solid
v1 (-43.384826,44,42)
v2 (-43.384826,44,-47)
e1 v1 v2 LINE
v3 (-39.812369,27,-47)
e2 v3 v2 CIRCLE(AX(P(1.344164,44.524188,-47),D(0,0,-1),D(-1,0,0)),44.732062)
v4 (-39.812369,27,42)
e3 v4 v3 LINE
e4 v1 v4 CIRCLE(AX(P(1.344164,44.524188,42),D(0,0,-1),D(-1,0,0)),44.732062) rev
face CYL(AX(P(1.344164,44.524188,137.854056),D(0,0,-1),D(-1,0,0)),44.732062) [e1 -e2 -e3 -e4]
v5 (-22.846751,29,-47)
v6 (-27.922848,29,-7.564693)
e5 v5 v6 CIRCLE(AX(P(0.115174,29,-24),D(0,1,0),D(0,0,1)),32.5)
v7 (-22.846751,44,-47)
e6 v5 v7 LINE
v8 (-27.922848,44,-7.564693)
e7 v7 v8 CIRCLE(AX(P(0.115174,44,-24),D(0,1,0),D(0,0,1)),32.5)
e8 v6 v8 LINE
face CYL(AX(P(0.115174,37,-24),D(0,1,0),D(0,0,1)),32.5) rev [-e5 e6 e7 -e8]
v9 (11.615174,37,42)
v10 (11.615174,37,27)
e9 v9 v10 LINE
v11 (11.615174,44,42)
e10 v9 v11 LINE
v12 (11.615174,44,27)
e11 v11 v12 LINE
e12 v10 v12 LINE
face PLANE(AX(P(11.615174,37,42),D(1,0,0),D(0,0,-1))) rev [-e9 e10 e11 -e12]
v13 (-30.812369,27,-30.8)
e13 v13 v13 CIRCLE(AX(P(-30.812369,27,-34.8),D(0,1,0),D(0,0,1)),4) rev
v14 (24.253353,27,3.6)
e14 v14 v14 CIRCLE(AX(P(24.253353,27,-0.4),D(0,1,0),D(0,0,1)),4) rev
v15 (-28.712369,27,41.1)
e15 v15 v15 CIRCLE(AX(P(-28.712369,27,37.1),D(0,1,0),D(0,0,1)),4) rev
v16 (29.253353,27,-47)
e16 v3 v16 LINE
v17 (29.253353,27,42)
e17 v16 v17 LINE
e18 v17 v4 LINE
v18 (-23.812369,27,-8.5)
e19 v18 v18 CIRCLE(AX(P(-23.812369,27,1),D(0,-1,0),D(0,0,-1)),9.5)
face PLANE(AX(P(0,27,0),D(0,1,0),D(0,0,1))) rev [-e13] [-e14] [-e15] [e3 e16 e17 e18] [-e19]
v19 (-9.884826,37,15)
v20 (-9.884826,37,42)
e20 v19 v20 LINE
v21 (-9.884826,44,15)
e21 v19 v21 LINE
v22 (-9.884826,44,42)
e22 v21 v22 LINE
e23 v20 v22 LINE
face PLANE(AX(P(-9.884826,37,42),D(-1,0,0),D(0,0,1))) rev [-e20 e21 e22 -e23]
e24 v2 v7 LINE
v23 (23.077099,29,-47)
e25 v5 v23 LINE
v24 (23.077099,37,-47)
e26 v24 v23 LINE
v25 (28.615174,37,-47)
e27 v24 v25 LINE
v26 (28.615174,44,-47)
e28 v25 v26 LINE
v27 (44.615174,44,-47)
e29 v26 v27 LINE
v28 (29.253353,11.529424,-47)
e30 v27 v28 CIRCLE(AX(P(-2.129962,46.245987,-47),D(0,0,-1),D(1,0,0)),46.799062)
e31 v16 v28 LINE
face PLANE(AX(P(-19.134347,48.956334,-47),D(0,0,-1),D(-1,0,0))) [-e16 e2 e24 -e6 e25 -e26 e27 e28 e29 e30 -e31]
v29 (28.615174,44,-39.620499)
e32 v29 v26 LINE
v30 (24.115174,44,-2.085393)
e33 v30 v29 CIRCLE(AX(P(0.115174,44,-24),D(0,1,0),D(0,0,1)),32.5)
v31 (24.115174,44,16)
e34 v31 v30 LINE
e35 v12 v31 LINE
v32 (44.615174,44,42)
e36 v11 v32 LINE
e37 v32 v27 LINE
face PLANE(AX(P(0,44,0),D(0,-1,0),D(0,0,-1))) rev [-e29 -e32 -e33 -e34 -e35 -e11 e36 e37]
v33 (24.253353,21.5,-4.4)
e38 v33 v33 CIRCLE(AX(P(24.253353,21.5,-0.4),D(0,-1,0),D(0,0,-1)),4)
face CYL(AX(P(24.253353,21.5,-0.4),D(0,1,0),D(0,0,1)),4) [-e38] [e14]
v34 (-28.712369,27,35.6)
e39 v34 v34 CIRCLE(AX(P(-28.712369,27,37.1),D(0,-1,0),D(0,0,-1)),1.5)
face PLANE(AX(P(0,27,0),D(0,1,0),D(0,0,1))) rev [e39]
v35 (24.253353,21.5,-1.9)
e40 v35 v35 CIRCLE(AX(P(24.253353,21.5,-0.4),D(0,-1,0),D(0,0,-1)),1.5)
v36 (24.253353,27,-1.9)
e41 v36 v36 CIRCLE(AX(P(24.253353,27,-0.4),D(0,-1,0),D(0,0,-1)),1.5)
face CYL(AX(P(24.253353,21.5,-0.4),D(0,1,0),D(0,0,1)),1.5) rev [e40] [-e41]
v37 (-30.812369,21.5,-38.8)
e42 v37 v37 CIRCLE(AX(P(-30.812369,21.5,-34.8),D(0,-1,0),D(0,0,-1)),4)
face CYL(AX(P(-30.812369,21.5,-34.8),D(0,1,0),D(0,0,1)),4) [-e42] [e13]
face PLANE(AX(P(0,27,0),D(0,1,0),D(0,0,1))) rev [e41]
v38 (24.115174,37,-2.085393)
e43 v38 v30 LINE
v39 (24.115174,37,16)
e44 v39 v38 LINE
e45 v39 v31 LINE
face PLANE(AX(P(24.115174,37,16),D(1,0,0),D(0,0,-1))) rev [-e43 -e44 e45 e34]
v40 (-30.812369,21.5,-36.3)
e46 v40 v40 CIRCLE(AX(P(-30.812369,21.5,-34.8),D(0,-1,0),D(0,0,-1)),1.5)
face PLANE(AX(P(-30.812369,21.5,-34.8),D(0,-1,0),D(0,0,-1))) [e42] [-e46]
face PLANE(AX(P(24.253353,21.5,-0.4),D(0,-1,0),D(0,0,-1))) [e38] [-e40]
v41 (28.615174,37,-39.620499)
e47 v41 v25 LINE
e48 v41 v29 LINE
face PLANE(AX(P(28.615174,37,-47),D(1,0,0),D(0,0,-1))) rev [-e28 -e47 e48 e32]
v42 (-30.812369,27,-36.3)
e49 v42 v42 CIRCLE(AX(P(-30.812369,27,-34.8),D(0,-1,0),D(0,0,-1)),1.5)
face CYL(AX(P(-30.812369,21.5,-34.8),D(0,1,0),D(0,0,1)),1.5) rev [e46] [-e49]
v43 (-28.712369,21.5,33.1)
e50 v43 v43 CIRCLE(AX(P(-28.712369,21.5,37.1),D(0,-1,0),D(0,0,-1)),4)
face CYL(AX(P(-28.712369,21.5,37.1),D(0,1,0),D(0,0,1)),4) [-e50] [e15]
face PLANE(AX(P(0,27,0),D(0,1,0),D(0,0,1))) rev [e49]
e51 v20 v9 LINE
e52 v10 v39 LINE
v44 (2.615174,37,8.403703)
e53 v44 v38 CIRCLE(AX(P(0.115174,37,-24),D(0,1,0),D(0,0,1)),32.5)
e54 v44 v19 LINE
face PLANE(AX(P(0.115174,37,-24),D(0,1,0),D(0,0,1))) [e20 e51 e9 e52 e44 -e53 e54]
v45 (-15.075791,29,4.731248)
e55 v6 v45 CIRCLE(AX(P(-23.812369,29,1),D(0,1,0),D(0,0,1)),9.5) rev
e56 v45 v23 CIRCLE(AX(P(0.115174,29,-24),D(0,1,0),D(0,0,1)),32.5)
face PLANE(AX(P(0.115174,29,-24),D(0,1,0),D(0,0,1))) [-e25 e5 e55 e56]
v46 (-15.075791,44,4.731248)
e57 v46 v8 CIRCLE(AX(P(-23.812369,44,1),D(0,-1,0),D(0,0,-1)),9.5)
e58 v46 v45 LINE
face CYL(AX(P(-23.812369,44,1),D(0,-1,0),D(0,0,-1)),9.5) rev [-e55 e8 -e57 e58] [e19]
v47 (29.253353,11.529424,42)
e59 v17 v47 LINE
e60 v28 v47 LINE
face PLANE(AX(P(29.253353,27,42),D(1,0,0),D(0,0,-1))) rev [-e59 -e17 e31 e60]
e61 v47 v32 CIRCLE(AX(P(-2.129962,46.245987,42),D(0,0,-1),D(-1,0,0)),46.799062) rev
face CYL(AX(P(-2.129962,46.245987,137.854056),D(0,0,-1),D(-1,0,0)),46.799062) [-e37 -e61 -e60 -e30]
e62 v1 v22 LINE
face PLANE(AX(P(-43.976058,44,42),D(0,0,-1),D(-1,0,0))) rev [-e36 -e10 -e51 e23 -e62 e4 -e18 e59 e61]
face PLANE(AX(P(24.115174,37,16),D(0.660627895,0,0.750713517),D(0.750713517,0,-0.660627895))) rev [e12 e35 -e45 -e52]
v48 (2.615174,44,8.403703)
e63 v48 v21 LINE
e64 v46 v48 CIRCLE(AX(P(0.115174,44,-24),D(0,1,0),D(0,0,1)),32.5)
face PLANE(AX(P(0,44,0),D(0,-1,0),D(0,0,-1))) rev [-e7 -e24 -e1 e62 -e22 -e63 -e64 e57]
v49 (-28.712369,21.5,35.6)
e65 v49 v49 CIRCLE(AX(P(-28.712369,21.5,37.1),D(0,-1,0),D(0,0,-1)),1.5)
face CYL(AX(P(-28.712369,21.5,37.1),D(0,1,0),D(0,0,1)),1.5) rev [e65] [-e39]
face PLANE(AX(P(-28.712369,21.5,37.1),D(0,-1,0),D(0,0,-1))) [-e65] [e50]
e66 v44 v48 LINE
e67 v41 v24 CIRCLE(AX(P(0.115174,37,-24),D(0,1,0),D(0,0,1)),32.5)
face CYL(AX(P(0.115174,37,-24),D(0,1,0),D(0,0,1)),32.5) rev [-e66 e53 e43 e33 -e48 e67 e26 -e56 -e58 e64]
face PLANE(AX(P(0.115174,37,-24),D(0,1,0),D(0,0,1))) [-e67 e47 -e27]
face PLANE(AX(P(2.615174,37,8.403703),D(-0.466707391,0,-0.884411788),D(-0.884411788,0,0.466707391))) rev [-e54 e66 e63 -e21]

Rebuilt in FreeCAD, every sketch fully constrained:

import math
import FreeCAD as App
import Part
import Sketcher

V = App.Vector


def add_polygon(sketch, points):
    """Adds a closed chain of lines whose ends are joined by coincident constraints."""
    first, n = sketch.GeometryCount, len(points)
    for a, b in zip(points, points[1:] + points[:1]):
        sketch.addGeometry(Part.LineSegment(App.Vector(*a, 0), App.Vector(*b, 0)), False)
    for i in range(n):
        sketch.addConstraint(Sketcher.Constraint("Coincident", first + i, 2, first + (i + 1) % n, 1))

doc = App.newDocument("Part")
params = doc.addObject("Spreadsheet::Sheet", "Params")
for row, (alias, value) in enumerate([
    ("sketch1_height", "84 mm"),
    ("pad1_length", "44 mm"),
    ("sketch2_width", "42 mm"),
    ("sketch3_width", "42 mm"),
    ("sketch3_length", "4 mm"),
    ("pocket2_length", "94 mm"),
    ("pad2_length", "5 mm"),
    ("sketch6_width", "88 mm"),
    ("pad3_length", "89 mm"),
    ("sketch7_height", "89 mm"),
    ("pocket4_length", "21 mm"),
    ("sketch8_height", "89 mm"),
    ("pocket5_length", "15 mm"),
    ("sketch9_diameter", "19 mm"),
    ("sketch10_diameter", "8 mm"),
    ("sketch10_diameter2", "3 mm"),
    ("pad4_length", "5.5 mm"),
    ("sketch11_radius", "32.5 mm"),
    ("sketch11_height", "15 mm"),
    ("sketch11_height2", "27 mm"),
    ("sketch11_width", "21.5 mm"),
    ("pocket7_length", "7 mm"),
    ("sketch12_diameter", "65 mm"),
    ("pocket8_length", "8 mm"),
], start=1):
    params.set(f"A{row}", alias)
    params.set(f"B{row}", "=" + value)
    params.setAlias(f"B{row}", alias)

body = doc.addObject("PartDesign::Body", "Body")

sketch1 = body.newObject("Sketcher::SketchObject", "Sketch")
sketch1.AttachmentSupport = (doc.getObject("XZ_Plane"), [""])
sketch1.MapMode = "FlatFace"
add_polygon(sketch1, [(-43.976058, -42), (-43.976058, 42), (43.976058, 42), (43.976058, -42)])
sketch1.addConstraint(Sketcher.Constraint("Vertical", 0))
sketch1.addConstraint(Sketcher.Constraint("Horizontal", 1))
sketch1.addConstraint(Sketcher.Constraint("Vertical", 2))
sketch1.addConstraint(Sketcher.Constraint("Horizontal", 3))
sketch1.addConstraint(Sketcher.Constraint("Symmetric", 0, 2, 2, 2, -1, 1))
sketch1.addConstraint(Sketcher.Constraint("DistanceY", 0, 1, 0, 2, 84.0))
sketch1.addConstraint(Sketcher.Constraint("DistanceX", 1, 1, 1, 2, 87.952115))
sketch1.setExpression("Constraints[9]", "Params.sketch1_height")
pad1 = body.newObject("PartDesign::Pad", "Pad")
pad1.Profile = sketch1
pad1.setExpression("Length", "Params.pad1_length")
pad1.Reversed = True

sketch2 = body.newObject("Sketcher::SketchObject", "Sketch001")
sketch2.AttachmentSupport = (doc.getObject("XY_Plane"), [""])
sketch2.MapMode = "FlatFace"
sketch2.AttachmentOffset = App.Placement(V(0, 0, 42), App.Rotation())
sketch2.addGeometry(Part.LineSegment(V(21, 0, 0), V(-21, 0, 0)), False)
sketch2.addGeometry(Part.ArcOfCircle(Part.Circle(V(29.251311, 54.239242, 0), V(0, 0, 1), 73.93977), math.radians(-172.040051), math.radians(-132.814341)), False)
sketch2.addGeometry(Part.LineSegment(V(-43.976058, 44, 0), V(-43.976058, -11.971242, 0)), False)
sketch2.addGeometry(Part.LineSegment(V(-43.976058, -11.971242, 0), V(43.976058, -11.971242, 0)), False)
sketch2.addGeometry(Part.LineSegment(V(43.976058, -11.971242, 0), V(43.976058, 44, 0)), False)
sketch2.addGeometry(Part.ArcOfCircle(Part.Circle(V(-19.134347, 48.956334, 0), V(0, 0, 1), 63.304726), math.radians(-50.655139), math.radians(-4.490469)), False)
sketch2.addConstraint(Sketcher.Constraint("Coincident", 0, 2, 1, 2))
sketch2.addConstraint(Sketcher.Constraint("Coincident", 1, 1, 2, 1))
sketch2.addConstraint(Sketcher.Constraint("Coincident", 2, 2, 3, 1))
sketch2.addConstraint(Sketcher.Constraint("Coincident", 3, 2, 4, 1))
sketch2.addConstraint(Sketcher.Constraint("Coincident", 4, 2, 5, 2))
sketch2.addConstraint(Sketcher.Constraint("Coincident", 5, 1, 0, 1))
sketch2.addConstraint(Sketcher.Constraint("Horizontal", 0))
sketch2.addConstraint(Sketcher.Constraint("Vertical", 2))
sketch2.addConstraint(Sketcher.Constraint("Horizontal", 3))
sketch2.addConstraint(Sketcher.Constraint("Vertical", 4))
sketch2.addConstraint(Sketcher.Constraint("Symmetric", 0, 2, 5, 1, -1, 1))
sketch2.addConstraint(Sketcher.Constraint("Symmetric", 1, 1, 4, 2, -2))
sketch2.addConstraint(Sketcher.Constraint("DistanceX", 0, 2, 0, 1, 42.0))
sketch2.addConstraint(Sketcher.Constraint("DistanceY", -1, 1, 1, 1, 44.0))
sketch2.addConstraint(Sketcher.Constraint("Radius", 1, 73.93977))
sketch2.addConstraint(Sketcher.Constraint("Radius", 5, 63.304726))
sketch2.addConstraint(Sketcher.Constraint("DistanceY", 2, 2, 2, 1, 55.971242))
sketch2.addConstraint(Sketcher.Constraint("DistanceX", 3, 1, 3, 2, 87.952115))
sketch2.setExpression("Constraints[12]", "Params.sketch2_width")
pocket1 = body.newObject("PartDesign::Pocket", "Pocket")
pocket1.Profile = sketch2
pocket1.Type = "ThroughAll"

sketch3 = body.newObject("Sketcher::SketchObject", "Sketch002")
sketch3.AttachmentSupport = (doc.getObject("XY_Plane"), [""])
sketch3.MapMode = "FlatFace"
sketch3.AttachmentOffset = App.Placement(V(0, 0, 42), App.Rotation())
sketch3.addGeometry(Part.LineSegment(V(-40.014597, 44.553923, 0), V(-43.976058, 44, 0)), False)
sketch3.addGeometry(Part.ArcOfCircle(Part.Circle(V(29.251311, 54.239242, 0), V(0, 0, 1), 73.93977), math.radians(-172.040051), math.radians(-132.814341)), False)
sketch3.addGeometry(Part.LineSegment(V(-21, 0, 0), V(21, 0, 0)), False)
sketch3.addGeometry(Part.ArcOfCircle(Part.Circle(V(-19.134347, 48.956334, 0), V(0, 0, 1), 63.304726), math.radians(-50.655139), math.radians(-4.490469)), False)
sketch3.addGeometry(Part.LineSegment(V(43.976058, 44, 0), V(39.988336, 44.313173, 0)), False)
sketch3.addGeometry(Part.ArcOfCircle(Part.Circle(V(-19.134347, 48.956334, 0), V(0, 0, 1), 59.304726), math.radians(-49.293162), math.radians(-4.490469)), False)
sketch3.addGeometry(Part.LineSegment(V(19.543536, 4, 0), V(-19.406577, 4, 0)), False)
sketch3.addGeometry(Part.ArcOfCircle(Part.Circle(V(29.251311, 54.239242, 0), V(0, 0, 1), 69.93977), math.radians(-172.040051), math.radians(-134.083925)), False)
sketch3.addConstraint(Sketcher.Constraint("Coincident", 0, 2, 1, 1))
sketch3.addConstraint(Sketcher.Constraint("Coincident", 1, 2, 2, 1))
sketch3.addConstraint(Sketcher.Constraint("Coincident", 2, 2, 3, 1))
sketch3.addConstraint(Sketcher.Constraint("Coincident", 3, 2, 4, 1))
sketch3.addConstraint(Sketcher.Constraint("Coincident", 4, 2, 5, 2))
sketch3.addConstraint(Sketcher.Constraint("Coincident", 5, 1, 6, 1))
sketch3.addConstraint(Sketcher.Constraint("Coincident", 6, 2, 7, 2))
sketch3.addConstraint(Sketcher.Constraint("Coincident", 7, 1, 0, 1))
sketch3.addConstraint(Sketcher.Constraint("Horizontal", 2))
sketch3.addConstraint(Sketcher.Constraint("Horizontal", 6))
sketch3.addConstraint(Sketcher.Constraint("Coincident", 5, 3, 3, 3))
sketch3.addConstraint(Sketcher.Constraint("Coincident", 7, 3, 1, 3))
sketch3.addConstraint(Sketcher.Constraint("Symmetric", 1, 2, 2, 2, -1, 1))
sketch3.addConstraint(Sketcher.Constraint("Symmetric", 0, 2, 3, 2, -2))
sketch3.addConstraint(Sketcher.Constraint("Equal", 0, 4))
sketch3.addConstraint(Sketcher.Constraint("DistanceX", 2, 1, 2, 2, 42.0))
sketch3.addConstraint(Sketcher.Constraint("Distance", 0, 4.0))
sketch3.addConstraint(Sketcher.Constraint("DistanceY", -1, 1, 0, 2, 44.0))
sketch3.addConstraint(Sketcher.Constraint("DistanceY", -1, 1, 5, 1, 4.0))
sketch3.addConstraint(Sketcher.Constraint("Radius", 1, 73.93977))
sketch3.addConstraint(Sketcher.Constraint("Radius", 3, 63.304726))
sketch3.addConstraint(Sketcher.Constraint("DistanceX", 5, 1, 4, 2, 20.4448))
sketch3.addConstraint(Sketcher.Constraint("DistanceX", 6, 2, 6, 1, 38.950113))
sketch3.addConstraint(Sketcher.Constraint("DistanceX", 0, 2, 7, 1, 3.96146))
sketch3.setExpression("Constraints[15]", "Params.sketch3_width")
sketch3.setExpression("Constraints[16]", "Params.sketch3_length")
pocket2 = body.newObject("PartDesign::Pocket", "Pocket001")
pocket2.Profile = sketch3
pocket2.setExpression("Length", "Params.pocket2_length")

sketch4 = body.newObject("Sketcher::SketchObject", "Sketch003")
sketch4.AttachmentSupport = (doc.getObject("XY_Plane"), [""])
sketch4.MapMode = "FlatFace"
sketch4.AttachmentOffset = App.Placement(V(0, 0, -42), App.Rotation())
sketch4.addGeometry(Part.LineSegment(V(19.543536, 4, 0), V(-19.406577, 4, 0)), False)
sketch4.addGeometry(Part.ArcOfCircle(Part.Circle(V(29.251311, 54.239242, 0), V(0, 0, 1), 69.93977), math.radians(-171.581592), math.radians(-134.083925)), False)
sketch4.addGeometry(Part.LineSegment(V(-39.934882, 44, 0), V(39.962907, 44, 0)), False)
sketch4.addGeometry(Part.ArcOfCircle(Part.Circle(V(-19.134347, 48.956334, 0), V(0, 0, 1), 59.304726), math.radians(-49.293162), math.radians(-4.79403)), False)
sketch4.addConstraint(Sketcher.Constraint("Coincident", 0, 2, 1, 2))
sketch4.addConstraint(Sketcher.Constraint("Coincident", 1, 1, 2, 1))
sketch4.addConstraint(Sketcher.Constraint("Coincident", 2, 2, 3, 2))
sketch4.addConstraint(Sketcher.Constraint("Coincident", 3, 1, 0, 1))
sketch4.addConstraint(Sketcher.Constraint("Horizontal", 0))
sketch4.addConstraint(Sketcher.Constraint("Horizontal", 2))
sketch4.addConstraint(Sketcher.Constraint("DistanceY", -1, 1, 0, 2, 4.0))
sketch4.addConstraint(Sketcher.Constraint("DistanceY", -1, 1, 1, 1, 44.0))
sketch4.addConstraint(Sketcher.Constraint("Radius", 1, 69.93977))
sketch4.addConstraint(Sketcher.Constraint("Radius", 3, 59.304726))
sketch4.addConstraint(Sketcher.Constraint("DistanceX", 2, 1, 2, 2, 79.897789))
sketch4.addConstraint(Sketcher.Constraint("DistanceX", 0, 2, 0, 1, 38.950113))
sketch4.addConstraint(Sketcher.Constraint("DistanceX", -1, 1, 1, 3, 29.251311))
sketch4.addConstraint(Sketcher.Constraint("DistanceY", -1, 1, 1, 3, 54.239242))
pad2 = body.newObject("PartDesign::Pad", "Pad001")
pad2.Profile = sketch4
pad2.setExpression("Length", "Params.pad2_length")
pad2.Reversed = True

sketch5 = body.newObject("Sketcher::SketchObject", "Sketch004")
sketch5.AttachmentSupport = (doc.getObject("XY_Plane"), [""])
sketch5.MapMode = "FlatFace"
sketch5.AttachmentOffset = App.Placement(V(0, 0, -47), App.Rotation())
sketch5.addGeometry(Part.LineSegment(V(19.543536, 4, 0), V(-19.406577, 4, 0)), False)
sketch5.addGeometry(Part.ArcOfCircle(Part.Circle(V(29.251309, 54.23924, 0), V(0, 0, 1), 69.939768), math.radians(-136.391618), math.radians(-134.083925)), False)
sketch5.addGeometry(Part.LineSegment(V(-21.390046, 6, 0), V(21.753353, 6, 0)), False)
sketch5.addGeometry(Part.ArcOfCircle(Part.Circle(V(-19.134346, 48.956333, 0), V(0, 0, 1), 59.304726), math.radians(-49.293162), math.radians(-46.413338)), False)
sketch5.addConstraint(Sketcher.Constraint("Coincident", 0, 2, 1, 2))
sketch5.addConstraint(Sketcher.Constraint("Coincident", 1, 1, 2, 1))
sketch5.addConstraint(Sketcher.Constraint("Coincident", 2, 2, 3, 2))
sketch5.addConstraint(Sketcher.Constraint("Coincident", 3, 1, 0, 1))
sketch5.addConstraint(Sketcher.Constraint("Horizontal", 0))
sketch5.addConstraint(Sketcher.Constraint("Horizontal", 2))
sketch5.addConstraint(Sketcher.Constraint("DistanceY", -1, 1, 0, 2, 4.0))
sketch5.addConstraint(Sketcher.Constraint("DistanceY", -1, 1, 1, 1, 6.0))
sketch5.addConstraint(Sketcher.Constraint("DistanceX", 2, 1, 2, 2, 43.143398))
sketch5.addConstraint(Sketcher.Constraint("Radius", 1, 69.939768))
sketch5.addConstraint(Sketcher.Constraint("Radius", 3, 59.304726))
sketch5.addConstraint(Sketcher.Constraint("DistanceX", 1, 1, 3, 3, 2.255699))
sketch5.addConstraint(Sketcher.Constraint("DistanceX", 0, 2, 0, 1, 38.950113))
sketch5.addConstraint(Sketcher.Constraint("DistanceX", -1, 1, 1, 3, 29.251309))
pocket3 = body.newObject("PartDesign::Pocket", "Pocket002")
pocket3.Profile = sketch5
pocket3.Type = "ThroughAll"
pocket3.Reversed = True

sketch6 = body.newObject("Sketcher::SketchObject", "Sketch005")
sketch6.AttachmentSupport = (doc.getObject("XY_Plane"), [""])
sketch6.MapMode = "FlatFace"
sketch6.AttachmentOffset = App.Placement(V(0, 0, -47), App.Rotation())
sketch6.addGeometry(Part.LineSegment(V(21.753353, 6, 0), V(-21.390046, 6, 0)), False)
sketch6.addGeometry(Part.ArcOfCircle(Part.Circle(V(1.344164, 44.524188, 0), V(0, 0, 1), 44.732062), math.radians(-179.32857), math.radians(-120.546053)), False)
sketch6.addGeometry(Part.LineSegment(V(-43.384826, 44, 0), V(44.615174, 44, 0)), False)
sketch6.addGeometry(Part.ArcOfCircle(Part.Circle(V(-2.129962, 46.245987, 0), V(0, 0, 1), 46.799062), math.radians(-59.313689), math.radians(-2.750803)), False)
sketch6.addConstraint(Sketcher.Constraint("Coincident", 0, 2, 1, 2))
sketch6.addConstraint(Sketcher.Constraint("Coincident", 1, 1, 2, 1))
sketch6.addConstraint(Sketcher.Constraint("Coincident", 2, 2, 3, 2))
sketch6.addConstraint(Sketcher.Constraint("Coincident", 3, 1, 0, 1))
sketch6.addConstraint(Sketcher.Constraint("Horizontal", 0))
sketch6.addConstraint(Sketcher.Constraint("Horizontal", 2))
sketch6.addConstraint(Sketcher.Constraint("DistanceX", 2, 1, 2, 2, 88.0))
sketch6.addConstraint(Sketcher.Constraint("DistanceY", -1, 1, 0, 2, 6.0))
sketch6.addConstraint(Sketcher.Constraint("DistanceY", -1, 1, 1, 1, 44.0))
sketch6.addConstraint(Sketcher.Constraint("Radius", 3, 46.799062))
sketch6.addConstraint(Sketcher.Constraint("DistanceX", 0, 2, 0, 1, 43.143398))
sketch6.addConstraint(Sketcher.Constraint("Radius", 1, 44.732062))
sketch6.addConstraint(Sketcher.Constraint("DistanceY", 1, 3, 3, 3, 1.721798))
sketch6.addConstraint(Sketcher.Constraint("DistanceX", -1, 1, 1, 3, 1.344164))
sketch6.setExpression("Constraints[6]", "Params.sketch6_width")
pad3 = body.newObject("PartDesign::Pad", "Pad002")
pad3.Profile = sketch6
pad3.setExpression("Length", "Params.pad3_length")

sketch7 = body.newObject("Sketcher::SketchObject", "Sketch006")
sketch7.AttachmentSupport = (doc.getObject("XZ_Plane"), [""])
sketch7.MapMode = "FlatFace"
sketch7.AttachmentOffset = App.Placement(V(0, 0, -6), App.Rotation())
add_polygon(sketch7, [(-37.390046, 42), (-37.390046, -47), (29.253353, -47), (29.253353, 42)])
sketch7.addConstraint(Sketcher.Constraint("Vertical", 0))
sketch7.addConstraint(Sketcher.Constraint("Horizontal", 1))
sketch7.addConstraint(Sketcher.Constraint("Vertical", 2))
sketch7.addConstraint(Sketcher.Constraint("Horizontal", 3))
sketch7.addConstraint(Sketcher.Constraint("DistanceY", 0, 2, 0, 1, 89.0))
sketch7.addConstraint(Sketcher.Constraint("DistanceY", 0, 2, -1, 1, 47.0))
sketch7.addConstraint(Sketcher.Constraint("DistanceX", 1, 1, 1, 2, 66.643398))
sketch7.addConstraint(Sketcher.Constraint("DistanceX", 0, 2, -1, 1, 37.390046))
sketch7.setExpression("Constraints[8]", "Params.sketch7_height")
pocket4 = body.newObject("PartDesign::Pocket", "Pocket003")
pocket4.Profile = sketch7
pocket4.setExpression("Length", "Params.pocket4_length")

sketch8 = body.newObject("Sketcher::SketchObject", "Sketch007")
sketch8.AttachmentSupport = (doc.getObject("YZ_Plane"), [""])
sketch8.MapMode = "FlatFace"
sketch8.AttachmentOffset = App.Placement(V(0, 0, -37.390046), App.Rotation())
add_polygon(sketch8, [(27, 42), (22.149686, 42), (22.149686, -47), (27, -47)])
sketch8.addConstraint(Sketcher.Constraint("Horizontal", 0))
sketch8.addConstraint(Sketcher.Constraint("Vertical", 1))
sketch8.addConstraint(Sketcher.Constraint("Horizontal", 2))
sketch8.addConstraint(Sketcher.Constraint("Vertical", 3))
sketch8.addConstraint(Sketcher.Constraint("DistanceY", 1, 2, 1, 1, 89.0))
sketch8.addConstraint(Sketcher.Constraint("DistanceY", -1, 1, 0, 2, 42.0))
sketch8.addConstraint(Sketcher.Constraint("DistanceX", -1, 1, 2, 2, 27.0))
sketch8.addConstraint(Sketcher.Constraint("DistanceX", 0, 2, 0, 1, 4.850314))
sketch8.setExpression("Constraints[8]", "Params.sketch8_height")
pocket5 = body.newObject("PartDesign::Pocket", "Pocket004")
pocket5.Profile = sketch8
pocket5.setExpression("Length", "Params.pocket5_length")

sketch9 = body.newObject("Sketcher::SketchObject", "Sketch008")
sketch9.AttachmentSupport = (doc.getObject("XZ_Plane"), [""])
sketch9.MapMode = "FlatFace"
sketch9.AttachmentOffset = App.Placement(V(0, 0, -27), App.Rotation())
sketch9.addGeometry(Part.Circle(V(-23.812369, 1, 0), V(0, 0, 1), 9.5), False)
sketch9.addConstraint(Sketcher.Constraint("Diameter", 0, 19.0))
sketch9.addConstraint(Sketcher.Constraint("DistanceY", -1, 1, 0, 3, 1.0))
sketch9.addConstraint(Sketcher.Constraint("DistanceX", 0, 3, -1, 1, 23.812369))
sketch9.setExpression("Constraints[0]", "Params.sketch9_diameter")
pocket6 = body.newObject("PartDesign::Pocket", "Pocket005")
pocket6.Profile = sketch9
pocket6.Type = "ThroughAll"

sketch10 = body.newObject("Sketcher::SketchObject", "Sketch009")
sketch10.AttachmentSupport = (doc.getObject("XZ_Plane"), [""])
sketch10.MapMode = "FlatFace"
sketch10.AttachmentOffset = App.Placement(V(0, 0, -27), App.Rotation())
sketch10.addGeometry(Part.Circle(V(-28.712369, 37.1, 0), V(0, 0, 1), 4), False)
sketch10.addGeometry(Part.Circle(V(-28.712369, 37.1, 0), V(0, 0, 1), 1.5), False)
sketch10.addGeometry(Part.Circle(V(24.253353, -0.4, 0), V(0, 0, 1), 4), False)
sketch10.addGeometry(Part.Circle(V(24.253353, -0.4, 0), V(0, 0, 1), 1.5), False)
sketch10.addGeometry(Part.Circle(V(-30.812369, -34.8, 0), V(0, 0, 1), 4), False)
sketch10.addGeometry(Part.Circle(V(-30.812369, -34.8, 0), V(0, 0, 1), 1.5), False)
sketch10.addConstraint(Sketcher.Constraint("Coincident", 1, 3, 0, 3))
sketch10.addConstraint(Sketcher.Constraint("Coincident", 3, 3, 2, 3))
sketch10.addConstraint(Sketcher.Constraint("Coincident", 5, 3, 4, 3))
sketch10.addConstraint(Sketcher.Constraint("Equal", 0, 2))
sketch10.addConstraint(Sketcher.Constraint("Equal", 1, 3))
sketch10.addConstraint(Sketcher.Constraint("Equal", 2, 4))
sketch10.addConstraint(Sketcher.Constraint("Equal", 3, 5))
sketch10.addConstraint(Sketcher.Constraint("Diameter", 0, 8.0))
sketch10.addConstraint(Sketcher.Constraint("Diameter", 1, 3.0))
sketch10.addConstraint(Sketcher.Constraint("DistanceY", -1, 1, 0, 3, 37.1))
sketch10.addConstraint(Sketcher.Constraint("DistanceY", 2, 3, -1, 1, 0.4))
sketch10.addConstraint(Sketcher.Constraint("DistanceY", 4, 3, -1, 1, 34.8))
sketch10.addConstraint(Sketcher.Constraint("DistanceX", 4, 3, 0, 3, 2.1))
sketch10.addConstraint(Sketcher.Constraint("DistanceX", 0, 3, -1, 1, 28.712369))
sketch10.addConstraint(Sketcher.Constraint("DistanceX", 0, 3, 2, 3, 52.965721))
sketch10.setExpression("Constraints[7]", "Params.sketch10_diameter")
sketch10.setExpression("Constraints[8]", "Params.sketch10_diameter2")
pad4 = body.newObject("PartDesign::Pad", "Pad003")
pad4.Profile = sketch10
pad4.setExpression("Length", "Params.pad4_length")

sketch11 = body.newObject("Sketcher::SketchObject", "Sketch010")
sketch11.AttachmentSupport = (doc.getObject("XZ_Plane"), [""])
sketch11.MapMode = "FlatFace"
sketch11.AttachmentOffset = App.Placement(V(0, 0, -44), App.Rotation())
sketch11.addGeometry(Part.LineSegment(V(-9.884826, 42, 0), V(11.615174, 42, 0)), False)
sketch11.addGeometry(Part.LineSegment(V(11.615174, 42, 0), V(11.615174, 27, 0)), False)
sketch11.addGeometry(Part.LineSegment(V(11.615174, 27, 0), V(24.115174, 16, 0)), False)
sketch11.addGeometry(Part.LineSegment(V(24.115174, 16, 0), V(24.115174, -2.085393, 0)), False)
sketch11.addGeometry(Part.ArcOfCircle(Part.Circle(V(0.115174, -24, 0), V(0, 0, 1), 32.5), math.radians(-28.726605), math.radians(42.399473)), False)
sketch11.addGeometry(Part.LineSegment(V(28.615174, -39.620499, 0), V(28.615174, -47, 0)), False)
sketch11.addGeometry(Part.LineSegment(V(28.615174, -47, 0), V(23.077099, -47, 0)), False)
sketch11.addGeometry(Part.ArcOfCircle(Part.Circle(V(0.115174, -24, 0), V(0, 0, 1), 32.5), math.radians(85.588274), math.radians(314.952536)), False)
sketch11.addGeometry(Part.LineSegment(V(2.615174, 8.403703, 0), V(-9.884826, 15, 0)), False)
sketch11.addGeometry(Part.LineSegment(V(-9.884826, 15, 0), V(-9.884826, 42, 0)), False)
sketch11.addConstraint(Sketcher.Constraint("Coincident", 0, 2, 1, 1))
sketch11.addConstraint(Sketcher.Constraint("Coincident", 1, 2, 2, 1))
sketch11.addConstraint(Sketcher.Constraint("Coincident", 2, 2, 3, 1))
sketch11.addConstraint(Sketcher.Constraint("Coincident", 3, 2, 4, 2))
sketch11.addConstraint(Sketcher.Constraint("Coincident", 4, 1, 5, 1))
sketch11.addConstraint(Sketcher.Constraint("Coincident", 5, 2, 6, 1))
sketch11.addConstraint(Sketcher.Constraint("Coincident", 6, 2, 7, 2))
sketch11.addConstraint(Sketcher.Constraint("Coincident", 7, 1, 8, 1))
sketch11.addConstraint(Sketcher.Constraint("Coincident", 8, 2, 9, 1))
sketch11.addConstraint(Sketcher.Constraint("Coincident", 9, 2, 0, 1))
sketch11.addConstraint(Sketcher.Constraint("Horizontal", 0))
sketch11.addConstraint(Sketcher.Constraint("Vertical", 1))
sketch11.addConstraint(Sketcher.Constraint("Vertical", 3))
sketch11.addConstraint(Sketcher.Constraint("Vertical", 5))
sketch11.addConstraint(Sketcher.Constraint("Horizontal", 6))
sketch11.addConstraint(Sketcher.Constraint("Vertical", 9))
sketch11.addConstraint(Sketcher.Constraint("Coincident", 7, 3, 4, 3))
sketch11.addConstraint(Sketcher.Constraint("Equal", 4, 7))
sketch11.addConstraint(Sketcher.Constraint("Radius", 4, 32.5))
sketch11.addConstraint(Sketcher.Constraint("DistanceY", 1, 2, 1, 1, 15.0))
sketch11.addConstraint(Sketcher.Constraint("DistanceY", 9, 1, 9, 2, 27.0))
sketch11.addConstraint(Sketcher.Constraint("DistanceX", 0, 1, 0, 2, 21.5))
sketch11.addConstraint(Sketcher.Constraint("DistanceY", 4, 3, -1, 1, 24.0))
sketch11.addConstraint(Sketcher.Constraint("DistanceY", -1, 1, 0, 2, 42.0))
sketch11.addConstraint(Sketcher.Constraint("DistanceY", -1, 1, 2, 2, 16.0))
sketch11.addConstraint(Sketcher.Constraint("DistanceY", 5, 2, -1, 1, 47.0))
sketch11.addConstraint(Sketcher.Constraint("DistanceX", 7, 3, 2, 2, 24.0))
sketch11.addConstraint(Sketcher.Constraint("DistanceX", 1, 2, 4, 1, 17.0))
sketch11.addConstraint(Sketcher.Constraint("DistanceX", 7, 1, 1, 2, 9.0))
sketch11.addConstraint(Sketcher.Constraint("DistanceX", 8, 2, 2, 2, 34.0))
sketch11.addConstraint(Sketcher.Constraint("DistanceX", -1, 1, 6, 2, 23.077099))
sketch11.setExpression("Constraints[18]", "Params.sketch11_radius")
sketch11.setExpression("Constraints[19]", "Params.sketch11_height")
sketch11.setExpression("Constraints[20]", "Params.sketch11_height2")
sketch11.setExpression("Constraints[21]", "Params.sketch11_width")
pocket7 = body.newObject("PartDesign::Pocket", "Pocket006")
pocket7.Profile = sketch11
pocket7.setExpression("Length", "Params.pocket7_length")
pocket7.Reversed = True

sketch12 = body.newObject("Sketcher::SketchObject", "Sketch011")
sketch12.AttachmentSupport = (doc.getObject("XZ_Plane"), [""])
sketch12.MapMode = "FlatFace"
sketch12.AttachmentOffset = App.Placement(V(0, 0, -37), App.Rotation())
sketch12.addGeometry(Part.Circle(V(0.115174, -24, 0), V(0, 0, 1), 32.5), False)
sketch12.addConstraint(Sketcher.Constraint("Diameter", 0, 65.0))
sketch12.addConstraint(Sketcher.Constraint("DistanceY", 0, 3, -1, 1, 24.0))
sketch12.addConstraint(Sketcher.Constraint("DistanceX", -1, 1, 0, 3, 0.115174))
sketch12.setExpression("Constraints[0]", "Params.sketch12_diameter")
pocket8 = body.newObject("PartDesign::Pocket", "Pocket007")
pocket8.Profile = sketch12
pocket8.setExpression("Length", "Params.pocket8_length")
pocket8.Reversed = True

doc.recompute()
